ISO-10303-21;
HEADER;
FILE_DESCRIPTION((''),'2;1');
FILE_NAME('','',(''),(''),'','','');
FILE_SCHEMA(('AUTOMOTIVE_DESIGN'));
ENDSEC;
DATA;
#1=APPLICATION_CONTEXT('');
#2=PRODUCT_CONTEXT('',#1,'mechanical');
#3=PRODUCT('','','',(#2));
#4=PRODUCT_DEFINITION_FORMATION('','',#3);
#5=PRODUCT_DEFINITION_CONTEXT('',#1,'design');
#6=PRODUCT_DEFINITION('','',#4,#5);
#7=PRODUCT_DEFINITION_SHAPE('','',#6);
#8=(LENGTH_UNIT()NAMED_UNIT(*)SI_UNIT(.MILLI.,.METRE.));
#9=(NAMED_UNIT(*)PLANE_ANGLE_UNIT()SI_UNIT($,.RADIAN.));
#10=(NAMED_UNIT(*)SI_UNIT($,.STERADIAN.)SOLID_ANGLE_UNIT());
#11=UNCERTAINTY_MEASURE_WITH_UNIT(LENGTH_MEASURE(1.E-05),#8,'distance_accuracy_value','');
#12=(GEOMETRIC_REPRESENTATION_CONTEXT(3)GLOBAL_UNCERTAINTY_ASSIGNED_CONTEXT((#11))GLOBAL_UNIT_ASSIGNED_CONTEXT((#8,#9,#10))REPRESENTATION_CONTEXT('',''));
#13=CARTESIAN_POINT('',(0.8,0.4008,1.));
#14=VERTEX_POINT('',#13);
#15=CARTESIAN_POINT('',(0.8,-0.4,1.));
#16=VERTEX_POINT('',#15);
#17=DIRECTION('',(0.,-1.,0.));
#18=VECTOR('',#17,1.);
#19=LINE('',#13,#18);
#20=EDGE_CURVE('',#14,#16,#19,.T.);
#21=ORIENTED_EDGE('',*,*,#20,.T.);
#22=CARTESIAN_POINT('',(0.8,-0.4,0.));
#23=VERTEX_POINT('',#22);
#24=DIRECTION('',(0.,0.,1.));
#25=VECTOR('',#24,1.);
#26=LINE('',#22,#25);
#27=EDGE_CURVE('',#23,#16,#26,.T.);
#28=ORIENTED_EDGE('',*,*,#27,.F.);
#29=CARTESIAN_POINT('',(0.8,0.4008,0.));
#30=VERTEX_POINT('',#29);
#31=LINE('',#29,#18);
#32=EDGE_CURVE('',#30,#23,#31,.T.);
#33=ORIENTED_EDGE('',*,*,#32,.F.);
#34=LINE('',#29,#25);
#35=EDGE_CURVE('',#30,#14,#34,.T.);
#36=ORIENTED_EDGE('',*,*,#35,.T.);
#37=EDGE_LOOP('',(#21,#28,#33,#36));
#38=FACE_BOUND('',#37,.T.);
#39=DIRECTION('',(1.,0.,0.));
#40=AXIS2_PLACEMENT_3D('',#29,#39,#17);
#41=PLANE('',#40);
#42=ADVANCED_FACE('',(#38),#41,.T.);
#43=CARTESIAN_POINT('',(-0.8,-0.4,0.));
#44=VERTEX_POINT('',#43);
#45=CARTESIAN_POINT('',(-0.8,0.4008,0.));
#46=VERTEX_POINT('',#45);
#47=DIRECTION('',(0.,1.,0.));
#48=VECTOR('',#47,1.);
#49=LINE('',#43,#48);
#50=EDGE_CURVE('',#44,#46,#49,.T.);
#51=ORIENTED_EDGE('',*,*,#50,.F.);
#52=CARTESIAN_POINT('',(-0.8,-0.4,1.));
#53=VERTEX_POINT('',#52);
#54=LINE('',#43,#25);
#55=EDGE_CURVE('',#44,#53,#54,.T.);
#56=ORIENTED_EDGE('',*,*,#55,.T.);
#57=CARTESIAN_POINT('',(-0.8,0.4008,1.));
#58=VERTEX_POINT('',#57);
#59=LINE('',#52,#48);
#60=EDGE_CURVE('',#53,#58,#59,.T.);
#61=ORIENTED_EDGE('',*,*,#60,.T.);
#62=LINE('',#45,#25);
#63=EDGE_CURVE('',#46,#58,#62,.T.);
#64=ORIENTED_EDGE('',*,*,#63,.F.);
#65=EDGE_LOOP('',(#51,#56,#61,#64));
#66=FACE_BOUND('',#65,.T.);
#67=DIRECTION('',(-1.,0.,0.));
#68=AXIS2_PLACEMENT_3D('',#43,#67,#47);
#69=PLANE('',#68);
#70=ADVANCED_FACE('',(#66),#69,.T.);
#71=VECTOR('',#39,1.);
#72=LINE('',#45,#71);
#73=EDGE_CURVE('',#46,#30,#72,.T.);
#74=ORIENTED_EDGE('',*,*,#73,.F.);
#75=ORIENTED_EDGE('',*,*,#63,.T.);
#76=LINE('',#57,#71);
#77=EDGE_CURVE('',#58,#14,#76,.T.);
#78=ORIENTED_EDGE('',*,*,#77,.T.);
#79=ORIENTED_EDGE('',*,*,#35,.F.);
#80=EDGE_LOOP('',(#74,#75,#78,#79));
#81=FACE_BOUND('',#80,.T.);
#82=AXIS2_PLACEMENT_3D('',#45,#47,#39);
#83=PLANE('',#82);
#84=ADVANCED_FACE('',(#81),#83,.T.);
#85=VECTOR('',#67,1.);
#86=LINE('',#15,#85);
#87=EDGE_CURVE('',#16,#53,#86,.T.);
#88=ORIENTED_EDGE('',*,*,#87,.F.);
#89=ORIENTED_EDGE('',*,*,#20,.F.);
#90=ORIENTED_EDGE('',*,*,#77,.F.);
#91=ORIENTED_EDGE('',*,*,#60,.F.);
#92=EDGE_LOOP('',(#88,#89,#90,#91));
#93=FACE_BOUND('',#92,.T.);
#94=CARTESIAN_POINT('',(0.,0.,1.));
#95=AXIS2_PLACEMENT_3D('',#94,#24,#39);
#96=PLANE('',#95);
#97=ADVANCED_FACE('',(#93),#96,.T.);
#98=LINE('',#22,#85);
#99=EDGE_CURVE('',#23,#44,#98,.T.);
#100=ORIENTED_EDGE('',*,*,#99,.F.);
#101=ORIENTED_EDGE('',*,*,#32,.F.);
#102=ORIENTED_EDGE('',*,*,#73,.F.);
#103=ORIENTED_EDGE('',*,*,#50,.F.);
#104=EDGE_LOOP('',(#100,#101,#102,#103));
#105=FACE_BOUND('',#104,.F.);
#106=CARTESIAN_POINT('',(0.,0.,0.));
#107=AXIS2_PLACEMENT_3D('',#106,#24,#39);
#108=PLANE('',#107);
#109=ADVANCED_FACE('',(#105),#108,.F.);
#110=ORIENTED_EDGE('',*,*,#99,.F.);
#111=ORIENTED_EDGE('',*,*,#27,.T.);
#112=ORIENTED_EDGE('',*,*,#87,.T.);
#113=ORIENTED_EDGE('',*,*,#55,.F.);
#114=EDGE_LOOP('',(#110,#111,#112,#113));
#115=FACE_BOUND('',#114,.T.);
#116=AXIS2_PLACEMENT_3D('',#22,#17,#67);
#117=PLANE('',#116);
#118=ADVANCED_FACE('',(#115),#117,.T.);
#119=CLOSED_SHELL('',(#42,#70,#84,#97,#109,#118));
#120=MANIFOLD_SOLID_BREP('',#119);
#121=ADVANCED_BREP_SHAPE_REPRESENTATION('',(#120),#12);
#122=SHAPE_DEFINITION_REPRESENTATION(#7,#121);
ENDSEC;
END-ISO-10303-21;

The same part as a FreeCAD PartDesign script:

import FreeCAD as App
import Part
import Sketcher
from FreeCAD import Vector


def add_polygon(sketch, points):
    """Adds a closed chain of lines whose ends are joined by coincident constraints."""
    first, n = sketch.GeometryCount, len(points)
    for a, b in zip(points, points[1:] + points[:1]):
        sketch.addGeometry(Part.LineSegment(App.Vector(*a, 0), App.Vector(*b, 0)), False)
    for i in range(n):
        sketch.addConstraint(Sketcher.Constraint("Coincident", first + i, 2, first + (i + 1) % n, 1))

doc = App.newDocument("Part")
params = doc.addObject("Spreadsheet::Sheet", "Params")
for row, (alias, value) in enumerate([
    ("sketch1_width", "1.6 mm"),
    ("pad1_length", "1 mm"),
], start=1):
    params.set(f"A{row}", alias)
    params.set(f"B{row}", "=" + value)
    params.setAlias(f"B{row}", alias)

body = doc.addObject("PartDesign::Body", "Body")

# Sketch on XY plane
sketch1 = body.newObject("Sketcher::SketchObject", "Sketch")
sketch1.AttachmentSupport = (doc.getObject("XY_Plane"), [""])
sketch1.MapMode = "FlatFace"
add_polygon(sketch1, [(0.8, 0.4), (-0.8, 0.4), (-0.8, -0.4), (0.8, -0.4)])  # lines 0-3
sketch1.addConstraint([
    Sketcher.Constraint("Horizontal", 0),
    Sketcher.Constraint("Vertical", 1),
    Sketcher.Constraint("Horizontal", 2),
    Sketcher.Constraint("Vertical", 3),
    Sketcher.Constraint("DistanceX", 0, 2, 0, 1, 1.6),
    Sketcher.Constraint("DistanceX", 0, 2, -1, 1, 0.8),
    Sketcher.Constraint("DistanceY", 1, 2, -1, 1, 0.4),
    Sketcher.Constraint("DistanceY", 1, 2, 1, 1, 0.8008),
])
sketch1.setExpression("Constraints[8]", "Params.sketch1_width")
pad1 = body.newObject("PartDesign::Pad", "Pad")
pad1.Profile = sketch1
pad1.setExpression("Length", "Params.pad1_length")

doc.recompute()
